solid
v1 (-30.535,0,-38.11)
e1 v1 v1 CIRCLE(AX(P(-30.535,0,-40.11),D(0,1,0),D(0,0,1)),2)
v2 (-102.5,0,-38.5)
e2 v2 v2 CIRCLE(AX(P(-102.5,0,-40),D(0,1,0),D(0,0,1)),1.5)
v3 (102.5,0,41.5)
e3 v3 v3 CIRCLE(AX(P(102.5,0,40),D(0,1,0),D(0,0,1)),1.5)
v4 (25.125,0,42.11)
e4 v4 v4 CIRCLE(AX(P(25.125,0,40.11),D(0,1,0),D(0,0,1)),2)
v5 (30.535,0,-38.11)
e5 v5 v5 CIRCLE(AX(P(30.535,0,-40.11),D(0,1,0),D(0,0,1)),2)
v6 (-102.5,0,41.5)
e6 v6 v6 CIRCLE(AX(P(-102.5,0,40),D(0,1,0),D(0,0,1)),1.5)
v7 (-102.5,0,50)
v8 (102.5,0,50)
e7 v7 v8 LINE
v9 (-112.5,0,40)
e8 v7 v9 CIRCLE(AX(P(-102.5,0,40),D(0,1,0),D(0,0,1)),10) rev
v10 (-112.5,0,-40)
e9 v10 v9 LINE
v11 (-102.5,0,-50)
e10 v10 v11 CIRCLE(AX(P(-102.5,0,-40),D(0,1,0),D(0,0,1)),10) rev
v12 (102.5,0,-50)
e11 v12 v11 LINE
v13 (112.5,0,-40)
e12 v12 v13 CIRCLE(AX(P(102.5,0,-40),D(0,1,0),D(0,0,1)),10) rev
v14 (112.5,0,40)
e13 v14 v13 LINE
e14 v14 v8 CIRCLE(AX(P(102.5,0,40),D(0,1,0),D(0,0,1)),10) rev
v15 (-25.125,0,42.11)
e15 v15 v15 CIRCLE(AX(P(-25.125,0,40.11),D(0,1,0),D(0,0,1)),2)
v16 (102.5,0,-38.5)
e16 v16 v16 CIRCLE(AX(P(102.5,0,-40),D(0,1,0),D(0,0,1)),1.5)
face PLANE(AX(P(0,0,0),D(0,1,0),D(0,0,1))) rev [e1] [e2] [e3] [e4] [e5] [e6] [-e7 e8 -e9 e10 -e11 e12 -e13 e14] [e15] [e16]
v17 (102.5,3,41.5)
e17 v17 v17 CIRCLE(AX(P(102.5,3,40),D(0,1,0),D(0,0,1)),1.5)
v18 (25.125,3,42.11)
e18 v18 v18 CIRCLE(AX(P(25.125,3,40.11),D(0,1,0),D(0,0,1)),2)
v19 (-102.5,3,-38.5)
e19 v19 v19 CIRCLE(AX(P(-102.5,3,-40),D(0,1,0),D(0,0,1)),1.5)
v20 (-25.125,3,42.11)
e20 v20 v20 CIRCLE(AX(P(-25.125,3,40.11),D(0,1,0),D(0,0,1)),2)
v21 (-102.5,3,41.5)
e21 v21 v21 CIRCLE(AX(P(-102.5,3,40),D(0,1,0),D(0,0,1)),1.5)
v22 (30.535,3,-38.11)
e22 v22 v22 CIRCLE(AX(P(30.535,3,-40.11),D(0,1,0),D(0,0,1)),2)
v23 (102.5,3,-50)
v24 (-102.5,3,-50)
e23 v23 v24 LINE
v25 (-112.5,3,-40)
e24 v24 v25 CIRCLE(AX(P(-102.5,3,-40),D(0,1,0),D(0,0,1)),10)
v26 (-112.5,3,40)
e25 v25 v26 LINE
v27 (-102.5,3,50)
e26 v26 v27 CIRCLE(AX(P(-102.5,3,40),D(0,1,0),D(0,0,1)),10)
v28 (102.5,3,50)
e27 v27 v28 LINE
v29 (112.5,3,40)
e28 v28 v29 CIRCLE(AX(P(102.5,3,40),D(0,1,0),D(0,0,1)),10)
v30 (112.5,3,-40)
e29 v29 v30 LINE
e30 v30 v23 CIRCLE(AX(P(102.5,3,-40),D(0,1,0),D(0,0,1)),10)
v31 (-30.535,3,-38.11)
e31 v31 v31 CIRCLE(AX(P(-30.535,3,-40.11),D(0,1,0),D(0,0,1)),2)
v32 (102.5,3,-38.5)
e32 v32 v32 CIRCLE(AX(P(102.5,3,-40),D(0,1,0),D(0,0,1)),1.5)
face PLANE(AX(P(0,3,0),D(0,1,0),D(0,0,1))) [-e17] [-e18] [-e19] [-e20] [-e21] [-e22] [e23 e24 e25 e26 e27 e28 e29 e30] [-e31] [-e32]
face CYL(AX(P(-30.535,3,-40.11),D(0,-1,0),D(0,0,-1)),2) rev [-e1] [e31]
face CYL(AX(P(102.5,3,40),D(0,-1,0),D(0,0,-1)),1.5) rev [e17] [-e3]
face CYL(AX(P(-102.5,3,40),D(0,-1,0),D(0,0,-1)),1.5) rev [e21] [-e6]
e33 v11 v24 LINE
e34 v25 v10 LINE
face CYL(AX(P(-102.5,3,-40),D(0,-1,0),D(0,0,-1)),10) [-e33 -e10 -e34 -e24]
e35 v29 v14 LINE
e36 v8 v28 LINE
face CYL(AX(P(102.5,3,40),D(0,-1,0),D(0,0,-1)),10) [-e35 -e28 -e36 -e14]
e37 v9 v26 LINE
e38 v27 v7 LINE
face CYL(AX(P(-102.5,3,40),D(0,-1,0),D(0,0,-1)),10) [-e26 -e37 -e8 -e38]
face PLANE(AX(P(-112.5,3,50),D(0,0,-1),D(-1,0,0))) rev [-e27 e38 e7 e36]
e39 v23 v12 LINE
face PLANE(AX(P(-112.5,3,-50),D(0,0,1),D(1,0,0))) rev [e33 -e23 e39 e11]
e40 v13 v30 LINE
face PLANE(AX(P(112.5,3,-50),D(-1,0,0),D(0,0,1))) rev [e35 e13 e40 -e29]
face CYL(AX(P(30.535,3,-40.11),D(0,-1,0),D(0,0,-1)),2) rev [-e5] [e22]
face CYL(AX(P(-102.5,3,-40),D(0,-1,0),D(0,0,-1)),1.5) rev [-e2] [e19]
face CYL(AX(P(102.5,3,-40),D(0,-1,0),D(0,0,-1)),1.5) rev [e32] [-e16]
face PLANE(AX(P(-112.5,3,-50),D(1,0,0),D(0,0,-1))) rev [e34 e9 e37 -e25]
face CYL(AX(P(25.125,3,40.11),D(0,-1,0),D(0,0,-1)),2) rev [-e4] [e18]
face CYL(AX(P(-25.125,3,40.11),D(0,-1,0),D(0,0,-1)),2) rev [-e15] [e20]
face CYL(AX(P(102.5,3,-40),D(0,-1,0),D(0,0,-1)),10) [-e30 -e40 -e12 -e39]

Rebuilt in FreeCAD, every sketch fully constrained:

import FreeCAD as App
import Part
import Sketcher

V = App.Vector
Q = App.Units.Quantity


def edges_at(feature, points):
    """Names of the edges that pass closest to the given points."""
    edges = feature.Shape.Edges
    near = lambda p: min(range(len(edges)), key=lambda i: edges[i].distToShape(Part.Vertex(*p))[0])
    return sorted({f"Edge{near(p) + 1}" for p in points})


def add_polygon(sketch, points):
    """Adds a closed chain of lines whose ends are joined by coincident constraints."""
    first, n = sketch.GeometryCount, len(points)
    for a, b in zip(points, points[1:] + points[:1]):
        sketch.addGeometry(Part.LineSegment(App.Vector(*a, 0), App.Vector(*b, 0)), False)
    for i in range(n):
        sketch.addConstraint(Sketcher.Constraint("Coincident", first + i, 2, first + (i + 1) % n, 1))

doc = App.newDocument("Part")
body = doc.addObject("PartDesign::Body", "Body")

sketch1 = body.newObject("Sketcher::SketchObject", "Sketch")
sketch1.AttachmentSupport = (doc.getObject("XZ_Plane"), [""])
sketch1.MapMode = "FlatFace"
add_polygon(sketch1, [(-112.5, -50), (-112.5, 50), (112.5, 50), (112.5, -50)])
sketch1.addGeometry(Part.Circle(V(-102.5, 40, 0), V(0, 0, 1), 1.5), False)
sketch1.addGeometry(Part.Circle(V(-25.1, 40.1, 0), V(0, 0, 1), 2), False)
sketch1.addGeometry(Part.Circle(V(25.1, 40.1, 0), V(0, 0, 1), 2), False)
sketch1.addGeometry(Part.Circle(V(102.5, 40, 0), V(0, 0, 1), 1.5), False)
sketch1.addGeometry(Part.Circle(V(-102.5, -40, 0), V(0, 0, 1), 1.5), False)
sketch1.addGeometry(Part.Circle(V(-30.5, -40.1, 0), V(0, 0, 1), 2), False)
sketch1.addGeometry(Part.Circle(V(30.5, -40.1, 0), V(0, 0, 1), 2), False)
sketch1.addGeometry(Part.Circle(V(102.5, -40, 0), V(0, 0, 1), 1.5), False)
sketch1.addConstraint(Sketcher.Constraint("Vertical", 0))
sketch1.addConstraint(Sketcher.Constraint("Horizontal", 1))
sketch1.addConstraint(Sketcher.Constraint("Vertical", 2))
sketch1.addConstraint(Sketcher.Constraint("Horizontal", 3))
sketch1.addConstraint(Sketcher.Constraint("Equal", 5, 6))
sketch1.addConstraint(Sketcher.Constraint("Equal", 4, 7))
sketch1.addConstraint(Sketcher.Constraint("Equal", 7, 8))
sketch1.addConstraint(Sketcher.Constraint("Equal", 6, 9))
sketch1.addConstraint(Sketcher.Constraint("Equal", 9, 10))
sketch1.addConstraint(Sketcher.Constraint("Equal", 8, 11))
sketch1.addConstraint(Sketcher.Constraint("Symmetric", 7, 3, 8, 3, -1, 1))
sketch1.addConstraint(Sketcher.Constraint("Symmetric", 4, 3, 11, 3, -1, 1))
sketch1.addConstraint(Sketcher.Constraint("Symmetric", 0, 2, 2, 2, -1, 1))
sketch1.addConstraint(Sketcher.Constraint("Symmetric", 5, 3, 6, 3, -2))
sketch1.addConstraint(Sketcher.Constraint("Symmetric", 4, 3, 7, 3, -2))
sketch1.addConstraint(Sketcher.Constraint("Symmetric", 9, 3, 10, 3, -2))
sketch1.addConstraint(Sketcher.Constraint("Diameter", 4, Q("3 mm")))
sketch1.addConstraint(Sketcher.Constraint("Diameter", 5, Q("4 mm")))
sketch1.addConstraint(Sketcher.Constraint("DistanceX", 1, 1, 1, 2, Q("225 mm")))
sketch1.addConstraint(Sketcher.Constraint("DistanceY", 0, 1, 0, 2, Q("100 mm")))
sketch1.addConstraint(Sketcher.Constraint("DistanceY", -1, 1, 4, 3, Q("40 mm")))
sketch1.addConstraint(Sketcher.Constraint("DistanceX", 4, 3, 7, 3, Q("205 mm")))
sketch1.addConstraint(Sketcher.Constraint("DistanceY", -1, 1, 5, 3, Q("40.11 mm")))
sketch1.addConstraint(Sketcher.Constraint("DistanceY", 9, 3, -1, 1, Q("40.11 mm")))
sketch1.addConstraint(Sketcher.Constraint("DistanceX", 5, 3, 6, 3, Q("50.25 mm")))
sketch1.addConstraint(Sketcher.Constraint("DistanceX", 9, 3, 5, 3, Q("5.41 mm")))
pad1 = body.newObject("PartDesign::Pad", "Pad")
pad1.Profile = sketch1
pad1.Length = 3
pad1.Reversed = True
doc.recompute()

fillet = body.newObject("PartDesign::Fillet", "Fillet")
fillet.Base = (pad1, edges_at(pad1, [
    (112.5, 1.5, 50),
    (-112.5, 1.5, 50),
    (-112.5, 1.5, -50),
    (112.5, 1.5, -50),
]))
fillet.Radius = 10

doc.recompute()
